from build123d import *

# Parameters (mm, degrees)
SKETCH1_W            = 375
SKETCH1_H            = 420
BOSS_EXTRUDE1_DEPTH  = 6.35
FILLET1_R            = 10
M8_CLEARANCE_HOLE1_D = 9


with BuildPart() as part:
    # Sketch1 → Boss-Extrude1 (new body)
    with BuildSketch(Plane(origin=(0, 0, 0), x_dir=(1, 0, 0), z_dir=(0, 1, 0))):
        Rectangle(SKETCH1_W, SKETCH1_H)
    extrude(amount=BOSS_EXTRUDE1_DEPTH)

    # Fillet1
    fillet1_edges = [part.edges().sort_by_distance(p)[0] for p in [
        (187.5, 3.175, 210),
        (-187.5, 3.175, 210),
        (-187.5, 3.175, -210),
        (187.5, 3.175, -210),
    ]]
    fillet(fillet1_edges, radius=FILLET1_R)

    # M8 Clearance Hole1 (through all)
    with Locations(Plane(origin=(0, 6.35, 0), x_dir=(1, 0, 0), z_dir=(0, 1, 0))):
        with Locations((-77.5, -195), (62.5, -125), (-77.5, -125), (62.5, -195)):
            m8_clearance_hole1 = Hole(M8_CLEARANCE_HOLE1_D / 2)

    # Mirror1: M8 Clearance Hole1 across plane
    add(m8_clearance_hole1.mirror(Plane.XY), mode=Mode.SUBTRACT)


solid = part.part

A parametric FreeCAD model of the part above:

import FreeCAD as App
import Part
import Sketcher


def edges_at(feature, points):
    """Names of the edges that pass closest to the given points."""
    edges = feature.Shape.Edges
    near = lambda p: min(range(len(edges)), key=lambda i: edges[i].distToShape(Part.Vertex(*p))[0])
    return sorted({f"Edge{near(p) + 1}" for p in points})


def add_polygon(sketch, points):
    """Adds a closed chain of lines whose ends are joined by coincident constraints."""
    first, n = sketch.GeometryCount, len(points)
    for a, b in zip(points, points[1:] + points[:1]):
        sketch.addGeometry(Part.LineSegment(App.Vector(*a, 0), App.Vector(*b, 0)), False)
    for i in range(n):
        sketch.addConstraint(Sketcher.Constraint("Coincident", first + i, 2, first + (i + 1) % n, 1))

doc = App.newDocument("Part")
body = doc.addObject("PartDesign::Body", "Body")

sketch1 = body.newObject("Sketcher::SketchObject", "Sketch")
sketch1.AttachmentSupport = (doc.getObject("XZ_Plane"), [""])
sketch1.MapMode = "FlatFace"
add_polygon(sketch1, [(-188, -210), (-188, 210), (188, 210), (188, -210)])
sketch1.addConstraint(Sketcher.Constraint("Vertical", 0))
sketch1.addConstraint(Sketcher.Constraint("Horizontal", 1))
sketch1.addConstraint(Sketcher.Constraint("Vertical", 2))
sketch1.addConstraint(Sketcher.Constraint("Horizontal", 3))
sketch1.addConstraint(Sketcher.Constraint("Symmetric", 0, 2, 2, 2, -1, 1))
sketch1.addConstraint(Sketcher.Constraint("DistanceX", 1, 1, 1, 2, 375.0))
sketch1.addConstraint(Sketcher.Constraint("DistanceY", 0, 1, 0, 2, 420.0))
pad1 = body.newObject("PartDesign::Pad", "Pad")
pad1.Profile = sketch1
pad1.Length = 6.35
pad1.Reversed = True
doc.recompute()

fillet = body.newObject("PartDesign::Fillet", "Fillet")
fillet.Base = (pad1, edges_at(pad1, [
    (187.5, 3.175, 210),
    (-187.5, 3.175, 210),
    (-187.5, 3.175, -210),
    (187.5, 3.175, -210),
]))
fillet.Radius = 10

sketch2 = body.newObject("Sketcher::SketchObject", "Sketch001")
sketch2.AttachmentSupport = (doc.getObject("XZ_Plane"), [""])
sketch2.MapMode = "FlatFace"
sketch2.AttachmentOffset = App.Placement(App.Vector(0, 0, -6.35), App.Rotation())
sketch2.addGeometry(Part.Circle(App.Vector(-77.5, 195, 0), App.Vector(0, 0, 1), 4.5), False)
sketch2.addGeometry(Part.Circle(App.Vector(62.5, 125, 0), App.Vector(0, 0, 1), 4.5), False)
sketch2.addGeometry(Part.Circle(App.Vector(-77.5, 125, 0), App.Vector(0, 0, 1), 4.5), False)
sketch2.addGeometry(Part.Circle(App.Vector(62.5, 195, 0), App.Vector(0, 0, 1), 4.5), False)
sketch2.addConstraint(Sketcher.Constraint("Equal", 0, 1))
sketch2.addConstraint(Sketcher.Constraint("Equal", 1, 2))
sketch2.addConstraint(Sketcher.Constraint("Equal", 2, 3))
sketch2.addConstraint(Sketcher.Constraint("Horizontal", 1, 3, 2, 3))
sketch2.addConstraint(Sketcher.Constraint("Horizontal", 0, 3, 3, 3))
sketch2.addConstraint(Sketcher.Constraint("Vertical", 0, 3, 2, 3))
sketch2.addConstraint(Sketcher.Constraint("Vertical", 1, 3, 3, 3))
sketch2.addConstraint(Sketcher.Constraint("Diameter", 0, 9.0))
sketch2.addConstraint(Sketcher.Constraint("DistanceY", -1, 1, 0, 3, 195.0))
sketch2.addConstraint(Sketcher.Constraint("DistanceY", -1, 1, 1, 3, 125.0))
sketch2.addConstraint(Sketcher.Constraint("DistanceX", 0, 3, 1, 3, 140.0))
sketch2.addConstraint(Sketcher.Constraint("DistanceX", 0, 3, -1, 1, 77.5))
doc.recompute()
hole = body.newObject("PartDesign::Hole", "Hole")
hole.Profile = sketch2
hole.ThreadType = "None"
hole.Diameter = 9
hole.DepthType = "ThroughAll"
hole.Reversed = True
doc.recompute()

mirrored = body.newObject("PartDesign::Mirrored", "Mirrored")
mirrored.Originals = [hole]
mirrored.MirrorPlane = (doc.getObject("XY_Plane"), [""])
body.Tip = mirrored

doc.recompute()
